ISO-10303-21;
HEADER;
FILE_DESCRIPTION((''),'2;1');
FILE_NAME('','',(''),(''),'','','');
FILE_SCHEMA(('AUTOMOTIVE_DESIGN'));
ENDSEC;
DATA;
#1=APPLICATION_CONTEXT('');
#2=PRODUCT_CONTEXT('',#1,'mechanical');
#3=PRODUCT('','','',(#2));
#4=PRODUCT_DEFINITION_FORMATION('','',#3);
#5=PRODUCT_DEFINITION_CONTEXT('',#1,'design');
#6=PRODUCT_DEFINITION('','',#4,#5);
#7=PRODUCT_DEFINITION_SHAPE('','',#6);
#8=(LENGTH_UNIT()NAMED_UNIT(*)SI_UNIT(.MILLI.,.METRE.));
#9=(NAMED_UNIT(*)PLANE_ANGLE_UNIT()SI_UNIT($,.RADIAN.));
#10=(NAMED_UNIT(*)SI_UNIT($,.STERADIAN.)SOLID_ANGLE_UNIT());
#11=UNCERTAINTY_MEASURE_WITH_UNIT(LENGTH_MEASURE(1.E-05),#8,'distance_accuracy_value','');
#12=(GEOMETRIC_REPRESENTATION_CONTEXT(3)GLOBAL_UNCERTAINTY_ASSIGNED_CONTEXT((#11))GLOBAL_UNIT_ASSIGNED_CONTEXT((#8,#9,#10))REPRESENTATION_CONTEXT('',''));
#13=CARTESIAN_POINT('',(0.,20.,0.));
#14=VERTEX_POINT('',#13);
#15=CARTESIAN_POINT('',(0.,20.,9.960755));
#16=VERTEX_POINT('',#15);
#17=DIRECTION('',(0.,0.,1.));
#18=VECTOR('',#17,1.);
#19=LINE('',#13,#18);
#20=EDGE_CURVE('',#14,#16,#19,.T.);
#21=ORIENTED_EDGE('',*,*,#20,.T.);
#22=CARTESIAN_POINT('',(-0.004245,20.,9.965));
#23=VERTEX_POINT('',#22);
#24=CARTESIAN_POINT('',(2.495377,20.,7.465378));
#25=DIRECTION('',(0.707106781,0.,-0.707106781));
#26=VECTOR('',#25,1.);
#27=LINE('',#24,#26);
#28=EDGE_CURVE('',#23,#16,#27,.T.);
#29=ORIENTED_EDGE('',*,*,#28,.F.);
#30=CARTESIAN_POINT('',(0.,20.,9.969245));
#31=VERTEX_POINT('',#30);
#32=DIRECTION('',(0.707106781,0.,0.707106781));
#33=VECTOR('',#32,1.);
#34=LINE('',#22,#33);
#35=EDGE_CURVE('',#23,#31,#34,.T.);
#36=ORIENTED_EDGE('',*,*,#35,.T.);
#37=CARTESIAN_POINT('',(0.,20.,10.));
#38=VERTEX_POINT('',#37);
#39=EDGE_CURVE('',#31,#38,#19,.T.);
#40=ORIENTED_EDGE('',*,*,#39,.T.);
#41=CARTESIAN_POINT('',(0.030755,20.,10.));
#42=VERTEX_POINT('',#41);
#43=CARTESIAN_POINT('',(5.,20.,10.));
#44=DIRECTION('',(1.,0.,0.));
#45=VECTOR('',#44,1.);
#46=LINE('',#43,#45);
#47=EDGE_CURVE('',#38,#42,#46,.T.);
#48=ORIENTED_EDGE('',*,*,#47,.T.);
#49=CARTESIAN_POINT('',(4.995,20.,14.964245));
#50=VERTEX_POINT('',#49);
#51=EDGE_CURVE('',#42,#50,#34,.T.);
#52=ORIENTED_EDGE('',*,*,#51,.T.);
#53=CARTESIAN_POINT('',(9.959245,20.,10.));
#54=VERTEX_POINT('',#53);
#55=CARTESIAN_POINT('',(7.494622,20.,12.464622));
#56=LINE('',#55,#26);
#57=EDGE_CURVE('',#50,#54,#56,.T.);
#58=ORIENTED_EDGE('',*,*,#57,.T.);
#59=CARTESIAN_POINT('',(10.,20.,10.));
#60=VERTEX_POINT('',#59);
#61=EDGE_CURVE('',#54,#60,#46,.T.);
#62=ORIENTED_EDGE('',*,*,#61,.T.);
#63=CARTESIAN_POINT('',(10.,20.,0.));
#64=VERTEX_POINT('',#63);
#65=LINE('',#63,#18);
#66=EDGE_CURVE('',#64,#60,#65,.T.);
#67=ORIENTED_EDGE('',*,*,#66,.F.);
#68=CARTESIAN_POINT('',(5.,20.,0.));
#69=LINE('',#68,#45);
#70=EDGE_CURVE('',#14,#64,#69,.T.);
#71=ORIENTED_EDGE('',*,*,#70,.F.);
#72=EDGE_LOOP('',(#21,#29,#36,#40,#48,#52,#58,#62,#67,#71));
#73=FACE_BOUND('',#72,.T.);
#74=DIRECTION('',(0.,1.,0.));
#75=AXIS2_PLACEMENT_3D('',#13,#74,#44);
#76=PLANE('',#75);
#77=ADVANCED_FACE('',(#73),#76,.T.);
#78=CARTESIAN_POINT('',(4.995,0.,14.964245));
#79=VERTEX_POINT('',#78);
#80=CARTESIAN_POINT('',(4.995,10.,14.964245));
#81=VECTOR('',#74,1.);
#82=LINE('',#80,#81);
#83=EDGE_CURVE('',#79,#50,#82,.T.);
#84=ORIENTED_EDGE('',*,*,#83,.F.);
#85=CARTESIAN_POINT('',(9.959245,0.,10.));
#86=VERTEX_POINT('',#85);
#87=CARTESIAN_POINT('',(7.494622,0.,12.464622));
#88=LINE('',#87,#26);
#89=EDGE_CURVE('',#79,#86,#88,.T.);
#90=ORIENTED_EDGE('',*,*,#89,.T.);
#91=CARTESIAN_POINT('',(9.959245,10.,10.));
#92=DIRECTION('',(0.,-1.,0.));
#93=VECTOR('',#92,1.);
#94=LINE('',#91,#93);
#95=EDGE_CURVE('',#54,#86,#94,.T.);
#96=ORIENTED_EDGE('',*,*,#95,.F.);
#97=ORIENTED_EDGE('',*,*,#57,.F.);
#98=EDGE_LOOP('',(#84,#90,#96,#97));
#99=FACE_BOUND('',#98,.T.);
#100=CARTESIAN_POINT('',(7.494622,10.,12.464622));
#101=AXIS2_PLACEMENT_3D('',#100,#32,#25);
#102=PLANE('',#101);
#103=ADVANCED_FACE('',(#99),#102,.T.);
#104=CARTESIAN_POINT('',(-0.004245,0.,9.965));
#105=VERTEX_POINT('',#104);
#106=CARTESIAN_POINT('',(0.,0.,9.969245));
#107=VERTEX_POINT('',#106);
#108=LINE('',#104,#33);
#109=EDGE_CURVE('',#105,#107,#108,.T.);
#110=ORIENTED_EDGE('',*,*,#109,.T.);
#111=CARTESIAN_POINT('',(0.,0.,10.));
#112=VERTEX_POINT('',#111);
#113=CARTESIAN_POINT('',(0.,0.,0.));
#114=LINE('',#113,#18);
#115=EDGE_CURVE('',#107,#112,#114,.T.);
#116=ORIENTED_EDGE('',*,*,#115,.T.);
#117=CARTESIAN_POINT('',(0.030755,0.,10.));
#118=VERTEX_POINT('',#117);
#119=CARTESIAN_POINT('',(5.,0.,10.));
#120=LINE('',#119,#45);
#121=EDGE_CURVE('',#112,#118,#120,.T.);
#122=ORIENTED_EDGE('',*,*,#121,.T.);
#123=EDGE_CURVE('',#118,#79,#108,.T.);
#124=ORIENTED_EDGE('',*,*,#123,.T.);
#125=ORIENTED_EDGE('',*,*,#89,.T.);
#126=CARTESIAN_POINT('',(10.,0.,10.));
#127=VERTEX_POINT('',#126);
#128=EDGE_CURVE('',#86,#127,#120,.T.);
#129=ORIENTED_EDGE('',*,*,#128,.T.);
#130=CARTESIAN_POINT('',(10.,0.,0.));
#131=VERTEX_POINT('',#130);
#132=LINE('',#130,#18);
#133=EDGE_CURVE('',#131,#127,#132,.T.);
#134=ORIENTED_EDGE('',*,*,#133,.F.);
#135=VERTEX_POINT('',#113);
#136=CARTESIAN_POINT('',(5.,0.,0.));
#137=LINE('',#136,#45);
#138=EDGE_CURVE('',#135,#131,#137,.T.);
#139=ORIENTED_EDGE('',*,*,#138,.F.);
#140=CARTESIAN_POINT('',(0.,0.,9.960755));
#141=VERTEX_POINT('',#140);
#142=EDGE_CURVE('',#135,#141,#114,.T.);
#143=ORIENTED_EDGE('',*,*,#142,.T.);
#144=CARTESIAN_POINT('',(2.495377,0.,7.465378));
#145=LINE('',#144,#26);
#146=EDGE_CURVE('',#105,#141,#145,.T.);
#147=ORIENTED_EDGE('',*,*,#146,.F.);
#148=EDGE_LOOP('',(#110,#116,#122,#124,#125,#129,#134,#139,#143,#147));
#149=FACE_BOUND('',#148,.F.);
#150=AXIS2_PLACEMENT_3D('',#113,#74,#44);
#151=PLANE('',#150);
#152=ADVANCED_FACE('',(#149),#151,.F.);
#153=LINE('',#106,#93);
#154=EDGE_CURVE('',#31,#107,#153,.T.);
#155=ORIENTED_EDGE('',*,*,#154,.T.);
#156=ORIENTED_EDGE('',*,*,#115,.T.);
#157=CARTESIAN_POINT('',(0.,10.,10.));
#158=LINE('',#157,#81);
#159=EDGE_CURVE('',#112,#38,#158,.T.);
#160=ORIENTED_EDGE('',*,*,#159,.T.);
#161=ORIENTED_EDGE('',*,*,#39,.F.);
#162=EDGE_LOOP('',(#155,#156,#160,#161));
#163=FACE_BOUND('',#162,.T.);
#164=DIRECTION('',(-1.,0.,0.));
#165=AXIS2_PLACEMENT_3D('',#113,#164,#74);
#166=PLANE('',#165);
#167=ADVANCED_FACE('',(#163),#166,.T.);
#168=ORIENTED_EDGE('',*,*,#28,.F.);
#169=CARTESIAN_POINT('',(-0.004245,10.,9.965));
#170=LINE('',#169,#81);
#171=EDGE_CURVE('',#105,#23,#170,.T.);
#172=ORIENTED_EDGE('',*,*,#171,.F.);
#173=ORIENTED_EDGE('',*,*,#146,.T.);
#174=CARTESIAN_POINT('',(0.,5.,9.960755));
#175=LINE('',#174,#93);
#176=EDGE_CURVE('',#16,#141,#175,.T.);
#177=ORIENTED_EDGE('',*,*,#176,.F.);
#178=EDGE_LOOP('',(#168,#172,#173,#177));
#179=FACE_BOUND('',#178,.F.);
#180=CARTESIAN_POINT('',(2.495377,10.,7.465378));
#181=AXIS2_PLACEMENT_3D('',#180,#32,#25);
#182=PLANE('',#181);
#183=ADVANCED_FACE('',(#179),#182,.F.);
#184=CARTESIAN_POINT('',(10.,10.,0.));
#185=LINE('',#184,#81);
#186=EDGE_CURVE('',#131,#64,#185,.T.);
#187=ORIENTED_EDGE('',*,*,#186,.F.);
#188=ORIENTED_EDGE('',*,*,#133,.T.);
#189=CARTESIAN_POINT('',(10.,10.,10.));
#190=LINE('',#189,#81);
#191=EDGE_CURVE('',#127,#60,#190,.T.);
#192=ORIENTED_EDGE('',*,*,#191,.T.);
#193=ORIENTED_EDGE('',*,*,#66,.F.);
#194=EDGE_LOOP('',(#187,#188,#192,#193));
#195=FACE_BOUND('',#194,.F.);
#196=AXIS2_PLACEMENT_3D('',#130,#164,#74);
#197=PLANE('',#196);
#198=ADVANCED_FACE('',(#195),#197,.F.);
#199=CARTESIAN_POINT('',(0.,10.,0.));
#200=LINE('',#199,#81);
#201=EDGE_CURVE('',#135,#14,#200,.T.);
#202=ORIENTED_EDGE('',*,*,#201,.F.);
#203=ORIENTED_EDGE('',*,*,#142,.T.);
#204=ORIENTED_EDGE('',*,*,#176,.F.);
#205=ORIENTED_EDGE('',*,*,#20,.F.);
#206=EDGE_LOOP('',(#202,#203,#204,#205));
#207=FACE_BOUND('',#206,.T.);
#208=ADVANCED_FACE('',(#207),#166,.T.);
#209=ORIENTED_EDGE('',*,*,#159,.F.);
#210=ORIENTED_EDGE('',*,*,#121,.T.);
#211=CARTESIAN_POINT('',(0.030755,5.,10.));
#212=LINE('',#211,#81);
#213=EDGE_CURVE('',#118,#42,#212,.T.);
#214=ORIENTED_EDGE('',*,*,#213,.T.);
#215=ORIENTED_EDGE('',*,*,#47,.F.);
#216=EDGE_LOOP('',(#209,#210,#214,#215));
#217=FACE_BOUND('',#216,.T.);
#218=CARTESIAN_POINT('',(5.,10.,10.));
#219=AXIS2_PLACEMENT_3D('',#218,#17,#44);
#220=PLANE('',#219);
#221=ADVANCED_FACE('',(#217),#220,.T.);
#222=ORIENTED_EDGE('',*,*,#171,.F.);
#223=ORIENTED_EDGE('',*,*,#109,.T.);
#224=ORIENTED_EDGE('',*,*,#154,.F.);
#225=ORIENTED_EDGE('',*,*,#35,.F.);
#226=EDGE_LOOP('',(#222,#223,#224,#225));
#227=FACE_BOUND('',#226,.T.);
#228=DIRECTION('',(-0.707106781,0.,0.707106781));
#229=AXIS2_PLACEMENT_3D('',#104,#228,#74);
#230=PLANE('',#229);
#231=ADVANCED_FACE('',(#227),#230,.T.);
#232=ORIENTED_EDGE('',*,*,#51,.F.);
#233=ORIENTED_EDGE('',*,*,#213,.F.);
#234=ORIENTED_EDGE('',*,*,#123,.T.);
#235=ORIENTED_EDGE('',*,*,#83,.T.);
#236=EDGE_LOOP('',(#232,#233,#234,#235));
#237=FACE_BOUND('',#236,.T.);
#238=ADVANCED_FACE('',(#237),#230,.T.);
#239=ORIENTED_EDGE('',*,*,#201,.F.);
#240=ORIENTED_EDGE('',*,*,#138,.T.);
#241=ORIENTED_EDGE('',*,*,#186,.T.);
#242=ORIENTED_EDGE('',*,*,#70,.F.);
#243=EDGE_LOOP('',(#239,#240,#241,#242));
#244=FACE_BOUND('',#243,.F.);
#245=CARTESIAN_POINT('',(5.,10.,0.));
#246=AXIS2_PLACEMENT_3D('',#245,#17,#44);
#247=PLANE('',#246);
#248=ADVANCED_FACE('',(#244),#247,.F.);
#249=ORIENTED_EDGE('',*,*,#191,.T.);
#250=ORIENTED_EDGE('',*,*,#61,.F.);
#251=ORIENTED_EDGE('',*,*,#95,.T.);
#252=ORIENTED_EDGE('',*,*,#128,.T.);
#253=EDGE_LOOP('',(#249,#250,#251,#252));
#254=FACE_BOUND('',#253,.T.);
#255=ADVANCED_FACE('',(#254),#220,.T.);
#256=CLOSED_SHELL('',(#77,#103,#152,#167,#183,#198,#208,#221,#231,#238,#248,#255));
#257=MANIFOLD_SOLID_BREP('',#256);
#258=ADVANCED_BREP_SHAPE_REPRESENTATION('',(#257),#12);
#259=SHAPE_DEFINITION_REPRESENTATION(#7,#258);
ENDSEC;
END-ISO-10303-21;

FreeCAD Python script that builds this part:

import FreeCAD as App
import Part
import Sketcher
Q = App.Units.Quantity


def add_polygon(sketch, points):
    """Adds a closed chain of lines whose ends are joined by coincident constraints."""
    first, n = sketch.GeometryCount, len(points)
    for a, b in zip(points, points[1:] + points[:1]):
        sketch.addGeometry(Part.LineSegment(App.Vector(*a, 0), App.Vector(*b, 0)), False)
    for i in range(n):
        sketch.addConstraint(Sketcher.Constraint("Coincident", first + i, 2, first + (i + 1) % n, 1))

doc = App.newDocument("Part")
body = doc.addObject("PartDesign::Body", "Body")

# Sketch on XY plane
sketch1 = doc.addObject("Sketcher::SketchObject", "Sketch")
body.addObject(sketch1)
sketch1.AttachmentSupport = (doc.XY_Plane, [""])
sketch1.MapMode = "FlatFace"
add_polygon(sketch1, [(0, 20), (0, 0), (10, 0), (10, 20)])  # lines 0-3
sketch1.addConstraint([
    Sketcher.Constraint("Vertical", 0),
    Sketcher.Constraint("Horizontal", 1),
    Sketcher.Constraint("Vertical", 2),
    Sketcher.Constraint("Horizontal", 3),
    Sketcher.Constraint("Coincident", 0, 2, -1, 1),
    Sketcher.Constraint("DistanceX", 1, 1, 1, 2, Q("10 mm")),
    Sketcher.Constraint("DistanceY", 0, 2, 0, 1, Q("20 mm")),
])
pad1 = doc.addObject("PartDesign::Pad", "Pad")
body.addObject(pad1)
pad1.Profile = sketch1
pad1.Length = 10
body2 = doc.addObject("PartDesign::Body", "Body001")

# Sketch on XY plane
sketch2 = doc.addObject("Sketcher::SketchObject", "Sketch001")
body2.addObject(sketch2)
sketch2.AttachmentSupport = (doc.getObject("XY_Plane001"), [""])
sketch2.MapMode = "FlatFace"
add_polygon(sketch2, [(0, 20), (0, 0), (7, 0), (7, 20)])  # lines 0-3
sketch2.addConstraint([
    Sketcher.Constraint("Vertical", 0),
    Sketcher.Constraint("Horizontal", 1),
    Sketcher.Constraint("Vertical", 2),
    Sketcher.Constraint("Horizontal", 3),
    Sketcher.Constraint("Coincident", 0, 2, -1, 1),
    Sketcher.Constraint("DistanceY", 0, 2, 0, 1, Q("20 mm")),
    Sketcher.Constraint("DistanceX", 1, 1, 1, 2, Q("7.07 mm")),
])
pad2 = doc.addObject("PartDesign::Pad", "Pad001")
body2.addObject(pad2)
pad2.Profile = sketch2
pad2.Length = 7.07
body3 = doc.addObject("PartDesign::Body", "Body002")
doc.recompute()

body2.Placement = App.Placement(App.Vector(-0.004245, 0, 9.965), App.Rotation(App.Vector(0, 1, 0), 45))
boolean = doc.addObject("PartDesign::Boolean", "Boolean")
body3.addObject(boolean)
boolean.Type = "Fuse"
boolean.addObjects([body2])
doc.recompute()

boolean2 = doc.addObject("PartDesign::Boolean", "Boolean001")
body3.addObject(boolean2)
boolean2.Type = "Fuse"
boolean2.addObjects([body])

doc.recompute()
